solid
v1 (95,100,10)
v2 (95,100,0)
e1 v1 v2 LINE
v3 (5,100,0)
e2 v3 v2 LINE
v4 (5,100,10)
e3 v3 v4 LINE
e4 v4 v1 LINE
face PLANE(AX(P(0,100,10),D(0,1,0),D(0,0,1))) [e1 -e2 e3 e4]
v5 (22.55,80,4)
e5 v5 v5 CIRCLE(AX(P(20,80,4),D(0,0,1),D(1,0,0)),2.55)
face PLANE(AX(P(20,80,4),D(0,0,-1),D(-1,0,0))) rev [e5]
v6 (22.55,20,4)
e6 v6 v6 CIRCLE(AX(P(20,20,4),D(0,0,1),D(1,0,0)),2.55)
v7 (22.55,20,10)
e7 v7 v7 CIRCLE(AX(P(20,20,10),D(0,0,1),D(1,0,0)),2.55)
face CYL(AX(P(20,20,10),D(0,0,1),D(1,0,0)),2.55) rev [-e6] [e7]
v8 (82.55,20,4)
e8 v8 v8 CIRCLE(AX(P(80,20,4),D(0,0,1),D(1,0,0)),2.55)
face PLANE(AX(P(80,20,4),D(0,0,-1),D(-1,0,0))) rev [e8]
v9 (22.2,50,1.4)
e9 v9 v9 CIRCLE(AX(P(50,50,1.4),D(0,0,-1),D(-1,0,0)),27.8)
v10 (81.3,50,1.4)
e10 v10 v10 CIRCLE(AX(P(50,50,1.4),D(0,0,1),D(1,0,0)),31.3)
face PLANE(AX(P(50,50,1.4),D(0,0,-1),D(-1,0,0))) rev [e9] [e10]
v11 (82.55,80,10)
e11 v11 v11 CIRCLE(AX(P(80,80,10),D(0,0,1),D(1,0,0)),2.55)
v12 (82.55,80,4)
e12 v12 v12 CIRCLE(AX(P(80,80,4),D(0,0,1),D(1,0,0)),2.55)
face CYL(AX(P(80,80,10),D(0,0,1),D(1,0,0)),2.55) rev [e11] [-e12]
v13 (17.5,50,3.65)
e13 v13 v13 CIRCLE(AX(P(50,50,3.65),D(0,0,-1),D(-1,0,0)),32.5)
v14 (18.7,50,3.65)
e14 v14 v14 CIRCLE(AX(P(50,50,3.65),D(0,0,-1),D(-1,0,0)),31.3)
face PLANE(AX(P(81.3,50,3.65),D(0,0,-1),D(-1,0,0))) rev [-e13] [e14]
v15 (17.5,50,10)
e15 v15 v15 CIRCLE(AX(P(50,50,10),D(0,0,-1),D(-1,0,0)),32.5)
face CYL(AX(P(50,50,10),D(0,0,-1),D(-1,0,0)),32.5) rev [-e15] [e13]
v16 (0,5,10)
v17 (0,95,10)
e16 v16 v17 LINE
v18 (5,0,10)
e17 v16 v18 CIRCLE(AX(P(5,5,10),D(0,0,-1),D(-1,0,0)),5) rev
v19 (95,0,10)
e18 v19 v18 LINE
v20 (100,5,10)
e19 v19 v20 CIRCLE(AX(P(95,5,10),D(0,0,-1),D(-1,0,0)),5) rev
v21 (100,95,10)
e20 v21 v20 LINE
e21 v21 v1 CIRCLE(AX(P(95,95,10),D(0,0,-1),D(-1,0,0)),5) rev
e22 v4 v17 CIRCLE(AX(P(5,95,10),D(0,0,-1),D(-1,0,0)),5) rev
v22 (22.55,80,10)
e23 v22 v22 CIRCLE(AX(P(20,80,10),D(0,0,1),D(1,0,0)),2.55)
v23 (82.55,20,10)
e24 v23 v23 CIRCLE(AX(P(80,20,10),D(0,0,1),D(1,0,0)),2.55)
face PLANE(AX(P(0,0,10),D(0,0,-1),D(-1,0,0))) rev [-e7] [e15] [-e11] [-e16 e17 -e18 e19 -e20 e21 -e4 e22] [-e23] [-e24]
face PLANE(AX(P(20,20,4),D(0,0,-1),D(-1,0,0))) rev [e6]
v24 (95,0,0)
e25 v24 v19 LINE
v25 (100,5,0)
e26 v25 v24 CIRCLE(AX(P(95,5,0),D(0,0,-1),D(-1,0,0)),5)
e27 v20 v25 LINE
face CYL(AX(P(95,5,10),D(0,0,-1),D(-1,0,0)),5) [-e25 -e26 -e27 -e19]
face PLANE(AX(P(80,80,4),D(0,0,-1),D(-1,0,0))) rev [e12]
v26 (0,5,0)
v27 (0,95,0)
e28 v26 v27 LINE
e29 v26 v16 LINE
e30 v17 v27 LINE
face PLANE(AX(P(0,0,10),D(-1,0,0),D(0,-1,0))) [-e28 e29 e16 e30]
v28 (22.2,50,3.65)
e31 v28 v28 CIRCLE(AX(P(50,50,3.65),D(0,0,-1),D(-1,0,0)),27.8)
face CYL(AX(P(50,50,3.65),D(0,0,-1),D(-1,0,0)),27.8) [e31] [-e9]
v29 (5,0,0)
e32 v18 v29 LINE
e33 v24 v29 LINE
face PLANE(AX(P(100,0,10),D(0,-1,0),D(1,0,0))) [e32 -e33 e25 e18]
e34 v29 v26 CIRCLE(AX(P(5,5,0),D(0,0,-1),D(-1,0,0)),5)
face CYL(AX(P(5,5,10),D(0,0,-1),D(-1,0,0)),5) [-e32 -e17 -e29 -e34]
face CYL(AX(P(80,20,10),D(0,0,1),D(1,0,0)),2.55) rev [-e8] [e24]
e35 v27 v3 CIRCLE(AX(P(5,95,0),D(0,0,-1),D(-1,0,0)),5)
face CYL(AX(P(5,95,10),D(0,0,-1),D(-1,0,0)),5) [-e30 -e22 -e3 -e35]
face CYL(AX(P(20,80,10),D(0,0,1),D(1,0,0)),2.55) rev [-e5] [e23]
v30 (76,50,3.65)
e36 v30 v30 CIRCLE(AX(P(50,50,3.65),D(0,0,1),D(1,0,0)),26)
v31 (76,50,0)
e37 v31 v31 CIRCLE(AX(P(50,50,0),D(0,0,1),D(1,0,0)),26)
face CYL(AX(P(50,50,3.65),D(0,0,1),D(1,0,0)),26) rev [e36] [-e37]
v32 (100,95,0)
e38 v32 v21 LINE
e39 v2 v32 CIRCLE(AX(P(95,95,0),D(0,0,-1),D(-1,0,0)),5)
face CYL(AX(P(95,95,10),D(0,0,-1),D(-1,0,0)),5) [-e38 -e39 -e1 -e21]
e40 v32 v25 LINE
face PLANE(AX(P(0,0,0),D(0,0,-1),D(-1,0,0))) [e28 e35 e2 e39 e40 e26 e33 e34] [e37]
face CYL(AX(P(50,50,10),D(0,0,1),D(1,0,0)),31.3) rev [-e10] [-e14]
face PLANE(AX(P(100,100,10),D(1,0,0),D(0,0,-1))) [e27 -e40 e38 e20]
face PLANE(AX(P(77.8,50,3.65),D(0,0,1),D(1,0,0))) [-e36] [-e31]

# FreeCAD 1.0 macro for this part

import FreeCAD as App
import Part
import Sketcher

V = App.Vector
Q = App.Units.Quantity


def edges_at(feature, points):
    """Names of the edges that pass closest to the given points."""
    edges = feature.Shape.Edges
    near = lambda p: min(range(len(edges)), key=lambda i: edges[i].distToShape(Part.Vertex(*p))[0])
    return sorted({f"Edge{near(p) + 1}" for p in points})


def add_polygon(sketch, points):
    """Adds a closed chain of lines whose ends are joined by coincident constraints."""
    first, n = sketch.GeometryCount, len(points)
    for a, b in zip(points, points[1:] + points[:1]):
        sketch.addGeometry(Part.LineSegment(App.Vector(*a, 0), App.Vector(*b, 0)), False)
    for i in range(n):
        sketch.addConstraint(Sketcher.Constraint("Coincident", first + i, 2, first + (i + 1) % n, 1))

doc = App.newDocument("Part")
params = doc.addObject("Spreadsheet::Sheet", "Params")
for row, (alias, value) in enumerate([
    ("sketch1_width", "100 mm"),
    ("pad1_length", "10 mm"),
    ("sketch2_diameter", "62.6 mm"),
    ("hole_diameter", "62.6 mm"),
    ("hole_depth", "8.6 mm"),
    ("sketch3_width", "27.8 mm"),
    ("sketch3_height", "2.25 mm"),
    ("revolution_angle", "360 deg"),
    ("sketch4_width", "1.2 mm"),
    ("sketch4_height", "6.35 mm"),
    ("groove_angle", "360 deg"),
    ("sketch5_diameter", "5.1 mm"),
    ("hole2_diameter", "5.1 mm"),
    ("hole2_depth", "6 mm"),
    ("sketch6_diameter", "52 mm"),
    ("hole3_diameter", "52 mm"),
    ("fillet_radius", "5 mm"),
], start=1):
    params.set(f"A{row}", alias)
    params.set(f"B{row}", "=" + value)
    params.setAlias(f"B{row}", alias)

body = doc.addObject("PartDesign::Body", "Body")

# Sketch on XY plane
sketch1 = body.newObject("Sketcher::SketchObject", "Sketch")
sketch1.AttachmentSupport = (doc.getObject("XY_Plane"), [""])
sketch1.MapMode = "FlatFace"
add_polygon(sketch1, [(100, 100), (100, 0), (0, 0), (0, 100)])  # lines 0-3
sketch1.addConstraint([
    Sketcher.Constraint("Vertical", 0),
    Sketcher.Constraint("Horizontal", 1),
    Sketcher.Constraint("Vertical", 2),
    Sketcher.Constraint("Horizontal", 3),
    Sketcher.Constraint("Coincident", 1, 2, -1, 1),
    Sketcher.Constraint("Equal", 3, 0),
    Sketcher.Constraint("DistanceX", 1, 2, 1, 1, Q("100 mm")),
])
sketch1.setExpression("Constraints[10]", "Params.sketch1_width")
pad1 = body.newObject("PartDesign::Pad", "Pad")
pad1.Profile = sketch1
pad1.setExpression("Length", "Params.pad1_length")

# Sketch on XY plane
sketch2 = body.newObject("Sketcher::SketchObject", "Sketch001")
sketch2.AttachmentSupport = (doc.getObject("XY_Plane"), [""])
sketch2.MapMode = "FlatFace"
sketch2.AttachmentOffset = App.Placement(V(0, 0, 10), App.Rotation())
sketch2.addGeometry(Part.Circle(V(50, 50, 0), V(0, 0, 1), 31), False)
sketch2.addConstraint([
    Sketcher.Constraint("Diameter", 0, Q("62.6 mm")),
    Sketcher.Constraint("DistanceX", -1, 1, 0, 3, Q("50 mm")),
    Sketcher.Constraint("DistanceY", -1, 1, 0, 3, Q("50 mm")),
])
sketch2.setExpression("Constraints[0]", "Params.sketch2_diameter")
doc.recompute()
hole = body.newObject("PartDesign::Hole", "Hole")
hole.Profile = sketch2
hole.ThreadType = "None"
hole.setExpression("Diameter", "Params.hole_diameter")
hole.DepthType = "Dimension"
hole.setExpression("Depth", "Params.hole_depth")
hole.DrillPoint = "Flat"

# Sketch on XZ plane
sketch3 = body.newObject("Sketcher::SketchObject", "Sketch002")
sketch3.AttachmentSupport = (doc.getObject("XZ_Plane"), [""])
sketch3.MapMode = "FlatFace"
sketch3.AttachmentOffset = App.Placement(V(0, 0, -50), App.Rotation())
add_polygon(sketch3, [(50, 3.6), (50, 1.4), (77.8, 1.4), (77.8, 3.6)])  # lines 0-3
sketch3.addGeometry(Part.LineSegment(V(50, 3.6, 0), V(50, 1.4, 0)), True)  # axis
sketch3.addConstraint([
    Sketcher.Constraint("Vertical", 0),
    Sketcher.Constraint("Horizontal", 1),
    Sketcher.Constraint("Vertical", 2),
    Sketcher.Constraint("Horizontal", 3),
    Sketcher.Constraint("Vertical", 4),
    Sketcher.Constraint("Coincident", 4, 1, 3, 2),
    Sketcher.Constraint("Horizontal", 1, 2, 4, 2),
    Sketcher.Constraint("DistanceX", 1, 1, 1, 2, Q("27.8 mm")),
    Sketcher.Constraint("DistanceX", -1, 1, 0, 2, Q("50 mm")),
    Sketcher.Constraint("DistanceY", 0, 2, 0, 1, Q("2.25 mm")),
    Sketcher.Constraint("DistanceY", -1, 1, 0, 2, Q("1.4 mm")),
])
sketch3.setExpression("Constraints[11]", "Params.sketch3_width")
sketch3.setExpression("Constraints[13]", "Params.sketch3_height")
revolution = body.newObject("PartDesign::Revolution", "Revolution")
revolution.Profile = sketch3
revolution.ReferenceAxis = (sketch3, ["Axis0"])
revolution.setExpression("Angle", "Params.revolution_angle")

# Sketch on XZ plane
sketch4 = body.newObject("Sketcher::SketchObject", "Sketch003")
sketch4.AttachmentSupport = (doc.getObject("XZ_Plane"), [""])
sketch4.MapMode = "FlatFace"
sketch4.AttachmentOffset = App.Placement(V(0, 0, -50), App.Rotation())
add_polygon(sketch4, [(81.3, 10), (81.3, 3.6), (82.5, 3.6), (82.5, 10)])  # lines 0-3
sketch4.addGeometry(Part.LineSegment(V(50, 10, 0), V(50, 3.6, 0)), True)  # axis
sketch4.addConstraint([
    Sketcher.Constraint("Vertical", 0),
    Sketcher.Constraint("Horizontal", 1),
    Sketcher.Constraint("Vertical", 2),
    Sketcher.Constraint("Horizontal", 3),
    Sketcher.Constraint("Vertical", 4),
    Sketcher.Constraint("Horizontal", 3, 2, 4, 1),
    Sketcher.Constraint("Horizontal", 1, 2, 4, 2),
    Sketcher.Constraint("DistanceX", 1, 1, 1, 2, Q("1.2 mm")),
    Sketcher.Constraint("DistanceY", -1, 1, 2, 2, Q("10 mm")),
    Sketcher.Constraint("DistanceX", -1, 1, 4, 1, Q("50 mm")),
    Sketcher.Constraint("DistanceY", 0, 2, 0, 1, Q("6.35 mm")),
    Sketcher.Constraint("DistanceX", -1, 1, 0, 2, Q("81.3 mm")),
])
sketch4.setExpression("Constraints[11]", "Params.sketch4_width")
sketch4.setExpression("Constraints[14]", "Params.sketch4_height")
groove = body.newObject("PartDesign::Groove", "Groove")
groove.Profile = sketch4
groove.ReferenceAxis = (sketch4, ["Axis0"])
groove.setExpression("Angle", "Params.groove_angle")

# Sketch on XY plane
sketch5 = body.newObject("Sketcher::SketchObject", "Sketch004")
sketch5.AttachmentSupport = (doc.getObject("XY_Plane"), [""])
sketch5.MapMode = "FlatFace"
sketch5.AttachmentOffset = App.Placement(V(0, 0, 10), App.Rotation())
sketch5.addGeometry([
    Part.Circle(V(80, 80, 0), V(0, 0, 1), 2.5),
    Part.Circle(V(80, 20, 0), V(0, 0, 1), 2.5),
    Part.Circle(V(20, 20, 0), V(0, 0, 1), 2.5),
    Part.Circle(V(20, 80, 0), V(0, 0, 1), 2.5),
], False)
sketch5.addConstraint([
    Sketcher.Constraint("Equal", 0, 1),
    Sketcher.Constraint("Equal", 1, 2),
    Sketcher.Constraint("Equal", 2, 3),
    Sketcher.Constraint("Horizontal", 1, 3, 2, 3),
    Sketcher.Constraint("Horizontal", 0, 3, 3, 3),
    Sketcher.Constraint("Vertical", 0, 3, 1, 3),
    Sketcher.Constraint("Vertical", 2, 3, 3, 3),
    Sketcher.Constraint("Diameter", 0, Q("5.1 mm")),
    Sketcher.Constraint("DistanceX", -1, 1, 0, 3, Q("80 mm")),
    Sketcher.Constraint("DistanceY", -1, 1, 0, 3, Q("80 mm")),
    Sketcher.Constraint("DistanceY", -1, 1, 1, 3, Q("20 mm")),
    Sketcher.Constraint("DistanceX", -1, 1, 2, 3, Q("20 mm")),
])
sketch5.setExpression("Constraints[7]", "Params.sketch5_diameter")
doc.recompute()
hole2 = body.newObject("PartDesign::Hole", "Hole001")
hole2.Profile = sketch5
hole2.ThreadType = "None"
hole2.setExpression("Diameter", "Params.hole2_diameter")
hole2.DepthType = "Dimension"
hole2.setExpression("Depth", "Params.hole2_depth")
hole2.DrillPoint = "Flat"

# Sketch on XY plane
sketch6 = body.newObject("Sketcher::SketchObject", "Sketch005")
sketch6.AttachmentSupport = (doc.getObject("XY_Plane"), [""])
sketch6.MapMode = "FlatFace"
sketch6.AttachmentOffset = App.Placement(V(0, 0, 3.65), App.Rotation())
sketch6.addGeometry(Part.Circle(V(50, 50, 0), V(0, 0, 1), 26), False)
sketch6.addConstraint([
    Sketcher.Constraint("Diameter", 0, Q("52 mm")),
    Sketcher.Constraint("DistanceX", -1, 1, 0, 3, Q("50 mm")),
    Sketcher.Constraint("DistanceY", -1, 1, 0, 3, Q("50 mm")),
])
sketch6.setExpression("Constraints[0]", "Params.sketch6_diameter")
doc.recompute()
hole3 = body.newObject("PartDesign::Hole", "Hole002")
hole3.Profile = sketch6
hole3.ThreadType = "None"
hole3.setExpression("Diameter", "Params.hole3_diameter")
hole3.DepthType = "ThroughAll"
doc.recompute()

fillet = body.newObject("PartDesign::Fillet", "Fillet")
fillet.Base = (hole3, edges_at(hole3, [
    (100, 100, 5),
    (0, 100, 5),
    (0, 0, 5),
    (100, 0, 5),
]))
fillet.setExpression("Radius", "Params.fillet_radius")

doc.recompute()
